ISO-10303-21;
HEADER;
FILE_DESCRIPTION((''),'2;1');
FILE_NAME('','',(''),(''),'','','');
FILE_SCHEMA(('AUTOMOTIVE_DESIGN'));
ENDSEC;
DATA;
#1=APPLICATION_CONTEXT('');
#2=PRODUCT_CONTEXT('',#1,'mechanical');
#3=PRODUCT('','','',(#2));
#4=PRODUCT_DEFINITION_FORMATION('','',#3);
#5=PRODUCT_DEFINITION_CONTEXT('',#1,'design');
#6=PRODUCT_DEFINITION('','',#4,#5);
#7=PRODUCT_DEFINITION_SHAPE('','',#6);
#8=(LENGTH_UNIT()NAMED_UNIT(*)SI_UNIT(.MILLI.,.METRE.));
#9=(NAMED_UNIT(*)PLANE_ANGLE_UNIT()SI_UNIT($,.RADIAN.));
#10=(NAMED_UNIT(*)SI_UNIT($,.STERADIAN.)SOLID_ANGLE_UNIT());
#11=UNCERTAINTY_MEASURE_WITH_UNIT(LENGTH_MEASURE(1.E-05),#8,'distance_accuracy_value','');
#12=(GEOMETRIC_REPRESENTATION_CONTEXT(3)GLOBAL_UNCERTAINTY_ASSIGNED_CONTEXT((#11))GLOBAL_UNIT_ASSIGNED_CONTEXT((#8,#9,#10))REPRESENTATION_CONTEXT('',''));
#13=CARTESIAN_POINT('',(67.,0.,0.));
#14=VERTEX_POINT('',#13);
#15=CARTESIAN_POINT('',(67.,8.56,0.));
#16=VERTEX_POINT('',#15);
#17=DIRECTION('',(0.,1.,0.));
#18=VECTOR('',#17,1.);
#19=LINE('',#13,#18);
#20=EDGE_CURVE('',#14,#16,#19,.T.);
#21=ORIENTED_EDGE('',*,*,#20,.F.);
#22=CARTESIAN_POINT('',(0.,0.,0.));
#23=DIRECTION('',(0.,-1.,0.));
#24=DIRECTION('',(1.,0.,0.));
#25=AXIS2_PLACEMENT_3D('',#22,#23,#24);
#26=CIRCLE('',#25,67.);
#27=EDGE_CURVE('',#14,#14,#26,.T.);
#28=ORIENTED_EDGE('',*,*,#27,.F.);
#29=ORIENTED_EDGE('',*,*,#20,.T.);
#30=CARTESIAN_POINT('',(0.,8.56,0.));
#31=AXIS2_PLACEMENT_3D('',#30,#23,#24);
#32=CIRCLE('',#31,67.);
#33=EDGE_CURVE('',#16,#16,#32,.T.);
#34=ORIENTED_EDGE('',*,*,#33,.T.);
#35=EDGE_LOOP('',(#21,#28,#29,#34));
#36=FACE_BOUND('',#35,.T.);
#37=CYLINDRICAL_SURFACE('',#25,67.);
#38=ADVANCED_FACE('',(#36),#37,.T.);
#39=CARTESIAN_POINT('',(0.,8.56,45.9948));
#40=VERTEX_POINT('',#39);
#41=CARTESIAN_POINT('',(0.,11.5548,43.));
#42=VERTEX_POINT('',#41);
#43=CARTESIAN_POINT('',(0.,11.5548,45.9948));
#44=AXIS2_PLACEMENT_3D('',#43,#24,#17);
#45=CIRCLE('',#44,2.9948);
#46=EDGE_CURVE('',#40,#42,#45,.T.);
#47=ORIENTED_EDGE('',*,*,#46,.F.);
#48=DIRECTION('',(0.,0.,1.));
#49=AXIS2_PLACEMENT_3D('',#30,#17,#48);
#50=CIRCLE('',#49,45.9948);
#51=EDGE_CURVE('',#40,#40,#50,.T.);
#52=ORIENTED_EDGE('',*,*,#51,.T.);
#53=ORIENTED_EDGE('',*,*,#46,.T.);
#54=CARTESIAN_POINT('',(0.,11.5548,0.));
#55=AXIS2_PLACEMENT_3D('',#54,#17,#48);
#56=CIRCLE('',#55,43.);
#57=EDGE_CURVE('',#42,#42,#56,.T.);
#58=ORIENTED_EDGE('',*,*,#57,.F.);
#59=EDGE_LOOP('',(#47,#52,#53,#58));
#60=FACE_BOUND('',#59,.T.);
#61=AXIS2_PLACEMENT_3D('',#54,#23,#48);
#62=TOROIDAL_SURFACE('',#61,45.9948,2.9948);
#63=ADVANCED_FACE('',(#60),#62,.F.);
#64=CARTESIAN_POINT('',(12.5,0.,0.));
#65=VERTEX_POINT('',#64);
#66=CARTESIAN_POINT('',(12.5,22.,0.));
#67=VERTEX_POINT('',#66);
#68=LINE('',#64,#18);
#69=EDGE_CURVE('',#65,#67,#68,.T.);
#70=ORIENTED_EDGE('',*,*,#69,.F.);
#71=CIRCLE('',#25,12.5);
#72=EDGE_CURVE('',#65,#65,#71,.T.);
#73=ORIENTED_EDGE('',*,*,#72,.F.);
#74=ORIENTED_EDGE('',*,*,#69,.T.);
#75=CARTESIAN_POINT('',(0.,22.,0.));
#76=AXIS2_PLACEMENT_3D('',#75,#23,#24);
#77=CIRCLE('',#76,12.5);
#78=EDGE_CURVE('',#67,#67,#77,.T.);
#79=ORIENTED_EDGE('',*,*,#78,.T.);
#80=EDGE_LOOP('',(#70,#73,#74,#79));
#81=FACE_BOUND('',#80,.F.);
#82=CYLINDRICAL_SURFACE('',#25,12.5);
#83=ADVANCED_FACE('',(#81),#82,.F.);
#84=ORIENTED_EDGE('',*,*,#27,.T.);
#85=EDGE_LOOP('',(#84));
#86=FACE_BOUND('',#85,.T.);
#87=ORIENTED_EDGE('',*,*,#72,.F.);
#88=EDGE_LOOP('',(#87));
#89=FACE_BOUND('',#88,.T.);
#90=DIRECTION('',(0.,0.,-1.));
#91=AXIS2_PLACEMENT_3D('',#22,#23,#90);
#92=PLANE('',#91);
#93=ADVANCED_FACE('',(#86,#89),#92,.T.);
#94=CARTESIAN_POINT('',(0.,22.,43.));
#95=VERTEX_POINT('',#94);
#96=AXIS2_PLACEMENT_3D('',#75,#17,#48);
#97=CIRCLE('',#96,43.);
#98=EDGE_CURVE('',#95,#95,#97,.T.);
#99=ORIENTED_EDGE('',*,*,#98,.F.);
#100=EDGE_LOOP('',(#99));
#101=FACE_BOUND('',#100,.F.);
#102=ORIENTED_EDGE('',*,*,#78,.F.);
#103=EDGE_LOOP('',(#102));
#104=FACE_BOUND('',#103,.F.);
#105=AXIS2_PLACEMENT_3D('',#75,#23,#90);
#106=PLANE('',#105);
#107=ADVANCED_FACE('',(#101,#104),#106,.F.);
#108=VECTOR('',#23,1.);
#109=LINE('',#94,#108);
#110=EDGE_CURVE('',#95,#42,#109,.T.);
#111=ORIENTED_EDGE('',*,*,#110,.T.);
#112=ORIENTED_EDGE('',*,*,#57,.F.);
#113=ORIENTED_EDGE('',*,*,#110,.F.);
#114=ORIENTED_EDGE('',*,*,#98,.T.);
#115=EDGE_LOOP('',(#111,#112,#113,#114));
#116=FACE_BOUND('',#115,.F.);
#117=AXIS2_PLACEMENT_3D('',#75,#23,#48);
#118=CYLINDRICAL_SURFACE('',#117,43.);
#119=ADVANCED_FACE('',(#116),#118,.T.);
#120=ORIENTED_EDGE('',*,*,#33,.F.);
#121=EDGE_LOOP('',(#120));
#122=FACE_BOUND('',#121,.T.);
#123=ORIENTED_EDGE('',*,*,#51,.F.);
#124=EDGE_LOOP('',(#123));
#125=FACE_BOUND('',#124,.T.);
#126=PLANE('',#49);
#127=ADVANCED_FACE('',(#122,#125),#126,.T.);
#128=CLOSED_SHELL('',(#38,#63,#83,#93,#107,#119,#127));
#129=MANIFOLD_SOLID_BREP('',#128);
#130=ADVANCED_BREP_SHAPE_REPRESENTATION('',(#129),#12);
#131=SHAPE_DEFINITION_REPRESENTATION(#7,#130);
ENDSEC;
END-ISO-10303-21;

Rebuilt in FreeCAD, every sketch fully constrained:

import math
import FreeCAD as App
import Part
import Sketcher

doc = App.newDocument("Part")
body = doc.addObject("PartDesign::Body", "Body")

# Sketch on XZ plane
sketch1 = body.newObject("Sketcher::SketchObject", "Sketch")
sketch1.AttachmentSupport = (doc.getObject("XZ_Plane"), [""])
sketch1.MapMode = "FlatFace"
sketch1.addGeometry(Part.Circle(App.Vector(0, 0, 0), App.Vector(0, 0, 1), 67), False)
sketch1.addConstraint([
    Sketcher.Constraint("Coincident", 0, 3, -1, 1),
    Sketcher.Constraint("Diameter", 0, 134.0),
])
pad1 = body.newObject("PartDesign::Pad", "Pad")
pad1.Profile = sketch1
pad1.Length = 22
pad1.Reversed = True

# Sketch on YZ plane
sketch2 = body.newObject("Sketcher::SketchObject", "Sketch001")
sketch2.AttachmentSupport = (doc.getObject("YZ_Plane"), [""])
sketch2.MapMode = "FlatFace"
sketch2.addGeometry([
    Part.LineSegment(App.Vector(22, 67, 0), App.Vector(8.56, 67, 0)),  # 0
    Part.LineSegment(App.Vector(8.56, 67, 0), App.Vector(8.56, 45.9948, 0)),  # 1
    Part.ArcOfCircle(Part.Circle(App.Vector(11.5548, 45.9948, 0), App.Vector(0, 0, 1), 2.9948), math.radians(180), math.radians(270)),  # 2
    Part.LineSegment(App.Vector(11.5548, 43, 0), App.Vector(22, 43, 0)),  # 3
    Part.LineSegment(App.Vector(22, 43, 0), App.Vector(22, 67, 0)),  # 4
], False)
sketch2.addConstraint([
    Sketcher.Constraint("Coincident", 0, 2, 1, 1),
    Sketcher.Constraint("Tangent", 1, 2, 2, 1),
    Sketcher.Constraint("Tangent", 2, 2, 3, 1),
    Sketcher.Constraint("Coincident", 3, 2, 4, 1),
    Sketcher.Constraint("Coincident", 4, 2, 0, 1),
    Sketcher.Constraint("Horizontal", 0),
    Sketcher.Constraint("Vertical", 1),
    Sketcher.Constraint("Horizontal", 3),
    Sketcher.Constraint("Vertical", 4),
    Sketcher.Constraint("DistanceY", 4, 1, 4, 2, 24.0),
    Sketcher.Constraint("DistanceY", -1, 1, 0, 2, 67.0),
    Sketcher.Constraint("DistanceX", -1, 1, 3, 2, 22.0),
    Sketcher.Constraint("DistanceX", 0, 2, 0, 1, 13.44),
    Sketcher.Constraint("Radius", 2, 2.9948),
])
groove = body.newObject("PartDesign::Groove", "Groove")
groove.Profile = sketch2
groove.ReferenceAxis = (sketch2, ["H_Axis"])
groove.Angle = 360

# Sketch on XZ plane
sketch3 = body.newObject("Sketcher::SketchObject", "Sketch002")
sketch3.AttachmentSupport = (doc.getObject("XZ_Plane"), [""])
sketch3.MapMode = "FlatFace"
sketch3.addGeometry(Part.Circle(App.Vector(0, 0, 0), App.Vector(0, 0, 1), 12.5), False)
sketch3.addConstraint([
    Sketcher.Constraint("Coincident", 0, 3, -1, 1),
    Sketcher.Constraint("Diameter", 0, 25.0),
])
pocket1 = body.newObject("PartDesign::Pocket", "Pocket")
pocket1.Profile = sketch3
pocket1.Length = 22

doc.recompute()
